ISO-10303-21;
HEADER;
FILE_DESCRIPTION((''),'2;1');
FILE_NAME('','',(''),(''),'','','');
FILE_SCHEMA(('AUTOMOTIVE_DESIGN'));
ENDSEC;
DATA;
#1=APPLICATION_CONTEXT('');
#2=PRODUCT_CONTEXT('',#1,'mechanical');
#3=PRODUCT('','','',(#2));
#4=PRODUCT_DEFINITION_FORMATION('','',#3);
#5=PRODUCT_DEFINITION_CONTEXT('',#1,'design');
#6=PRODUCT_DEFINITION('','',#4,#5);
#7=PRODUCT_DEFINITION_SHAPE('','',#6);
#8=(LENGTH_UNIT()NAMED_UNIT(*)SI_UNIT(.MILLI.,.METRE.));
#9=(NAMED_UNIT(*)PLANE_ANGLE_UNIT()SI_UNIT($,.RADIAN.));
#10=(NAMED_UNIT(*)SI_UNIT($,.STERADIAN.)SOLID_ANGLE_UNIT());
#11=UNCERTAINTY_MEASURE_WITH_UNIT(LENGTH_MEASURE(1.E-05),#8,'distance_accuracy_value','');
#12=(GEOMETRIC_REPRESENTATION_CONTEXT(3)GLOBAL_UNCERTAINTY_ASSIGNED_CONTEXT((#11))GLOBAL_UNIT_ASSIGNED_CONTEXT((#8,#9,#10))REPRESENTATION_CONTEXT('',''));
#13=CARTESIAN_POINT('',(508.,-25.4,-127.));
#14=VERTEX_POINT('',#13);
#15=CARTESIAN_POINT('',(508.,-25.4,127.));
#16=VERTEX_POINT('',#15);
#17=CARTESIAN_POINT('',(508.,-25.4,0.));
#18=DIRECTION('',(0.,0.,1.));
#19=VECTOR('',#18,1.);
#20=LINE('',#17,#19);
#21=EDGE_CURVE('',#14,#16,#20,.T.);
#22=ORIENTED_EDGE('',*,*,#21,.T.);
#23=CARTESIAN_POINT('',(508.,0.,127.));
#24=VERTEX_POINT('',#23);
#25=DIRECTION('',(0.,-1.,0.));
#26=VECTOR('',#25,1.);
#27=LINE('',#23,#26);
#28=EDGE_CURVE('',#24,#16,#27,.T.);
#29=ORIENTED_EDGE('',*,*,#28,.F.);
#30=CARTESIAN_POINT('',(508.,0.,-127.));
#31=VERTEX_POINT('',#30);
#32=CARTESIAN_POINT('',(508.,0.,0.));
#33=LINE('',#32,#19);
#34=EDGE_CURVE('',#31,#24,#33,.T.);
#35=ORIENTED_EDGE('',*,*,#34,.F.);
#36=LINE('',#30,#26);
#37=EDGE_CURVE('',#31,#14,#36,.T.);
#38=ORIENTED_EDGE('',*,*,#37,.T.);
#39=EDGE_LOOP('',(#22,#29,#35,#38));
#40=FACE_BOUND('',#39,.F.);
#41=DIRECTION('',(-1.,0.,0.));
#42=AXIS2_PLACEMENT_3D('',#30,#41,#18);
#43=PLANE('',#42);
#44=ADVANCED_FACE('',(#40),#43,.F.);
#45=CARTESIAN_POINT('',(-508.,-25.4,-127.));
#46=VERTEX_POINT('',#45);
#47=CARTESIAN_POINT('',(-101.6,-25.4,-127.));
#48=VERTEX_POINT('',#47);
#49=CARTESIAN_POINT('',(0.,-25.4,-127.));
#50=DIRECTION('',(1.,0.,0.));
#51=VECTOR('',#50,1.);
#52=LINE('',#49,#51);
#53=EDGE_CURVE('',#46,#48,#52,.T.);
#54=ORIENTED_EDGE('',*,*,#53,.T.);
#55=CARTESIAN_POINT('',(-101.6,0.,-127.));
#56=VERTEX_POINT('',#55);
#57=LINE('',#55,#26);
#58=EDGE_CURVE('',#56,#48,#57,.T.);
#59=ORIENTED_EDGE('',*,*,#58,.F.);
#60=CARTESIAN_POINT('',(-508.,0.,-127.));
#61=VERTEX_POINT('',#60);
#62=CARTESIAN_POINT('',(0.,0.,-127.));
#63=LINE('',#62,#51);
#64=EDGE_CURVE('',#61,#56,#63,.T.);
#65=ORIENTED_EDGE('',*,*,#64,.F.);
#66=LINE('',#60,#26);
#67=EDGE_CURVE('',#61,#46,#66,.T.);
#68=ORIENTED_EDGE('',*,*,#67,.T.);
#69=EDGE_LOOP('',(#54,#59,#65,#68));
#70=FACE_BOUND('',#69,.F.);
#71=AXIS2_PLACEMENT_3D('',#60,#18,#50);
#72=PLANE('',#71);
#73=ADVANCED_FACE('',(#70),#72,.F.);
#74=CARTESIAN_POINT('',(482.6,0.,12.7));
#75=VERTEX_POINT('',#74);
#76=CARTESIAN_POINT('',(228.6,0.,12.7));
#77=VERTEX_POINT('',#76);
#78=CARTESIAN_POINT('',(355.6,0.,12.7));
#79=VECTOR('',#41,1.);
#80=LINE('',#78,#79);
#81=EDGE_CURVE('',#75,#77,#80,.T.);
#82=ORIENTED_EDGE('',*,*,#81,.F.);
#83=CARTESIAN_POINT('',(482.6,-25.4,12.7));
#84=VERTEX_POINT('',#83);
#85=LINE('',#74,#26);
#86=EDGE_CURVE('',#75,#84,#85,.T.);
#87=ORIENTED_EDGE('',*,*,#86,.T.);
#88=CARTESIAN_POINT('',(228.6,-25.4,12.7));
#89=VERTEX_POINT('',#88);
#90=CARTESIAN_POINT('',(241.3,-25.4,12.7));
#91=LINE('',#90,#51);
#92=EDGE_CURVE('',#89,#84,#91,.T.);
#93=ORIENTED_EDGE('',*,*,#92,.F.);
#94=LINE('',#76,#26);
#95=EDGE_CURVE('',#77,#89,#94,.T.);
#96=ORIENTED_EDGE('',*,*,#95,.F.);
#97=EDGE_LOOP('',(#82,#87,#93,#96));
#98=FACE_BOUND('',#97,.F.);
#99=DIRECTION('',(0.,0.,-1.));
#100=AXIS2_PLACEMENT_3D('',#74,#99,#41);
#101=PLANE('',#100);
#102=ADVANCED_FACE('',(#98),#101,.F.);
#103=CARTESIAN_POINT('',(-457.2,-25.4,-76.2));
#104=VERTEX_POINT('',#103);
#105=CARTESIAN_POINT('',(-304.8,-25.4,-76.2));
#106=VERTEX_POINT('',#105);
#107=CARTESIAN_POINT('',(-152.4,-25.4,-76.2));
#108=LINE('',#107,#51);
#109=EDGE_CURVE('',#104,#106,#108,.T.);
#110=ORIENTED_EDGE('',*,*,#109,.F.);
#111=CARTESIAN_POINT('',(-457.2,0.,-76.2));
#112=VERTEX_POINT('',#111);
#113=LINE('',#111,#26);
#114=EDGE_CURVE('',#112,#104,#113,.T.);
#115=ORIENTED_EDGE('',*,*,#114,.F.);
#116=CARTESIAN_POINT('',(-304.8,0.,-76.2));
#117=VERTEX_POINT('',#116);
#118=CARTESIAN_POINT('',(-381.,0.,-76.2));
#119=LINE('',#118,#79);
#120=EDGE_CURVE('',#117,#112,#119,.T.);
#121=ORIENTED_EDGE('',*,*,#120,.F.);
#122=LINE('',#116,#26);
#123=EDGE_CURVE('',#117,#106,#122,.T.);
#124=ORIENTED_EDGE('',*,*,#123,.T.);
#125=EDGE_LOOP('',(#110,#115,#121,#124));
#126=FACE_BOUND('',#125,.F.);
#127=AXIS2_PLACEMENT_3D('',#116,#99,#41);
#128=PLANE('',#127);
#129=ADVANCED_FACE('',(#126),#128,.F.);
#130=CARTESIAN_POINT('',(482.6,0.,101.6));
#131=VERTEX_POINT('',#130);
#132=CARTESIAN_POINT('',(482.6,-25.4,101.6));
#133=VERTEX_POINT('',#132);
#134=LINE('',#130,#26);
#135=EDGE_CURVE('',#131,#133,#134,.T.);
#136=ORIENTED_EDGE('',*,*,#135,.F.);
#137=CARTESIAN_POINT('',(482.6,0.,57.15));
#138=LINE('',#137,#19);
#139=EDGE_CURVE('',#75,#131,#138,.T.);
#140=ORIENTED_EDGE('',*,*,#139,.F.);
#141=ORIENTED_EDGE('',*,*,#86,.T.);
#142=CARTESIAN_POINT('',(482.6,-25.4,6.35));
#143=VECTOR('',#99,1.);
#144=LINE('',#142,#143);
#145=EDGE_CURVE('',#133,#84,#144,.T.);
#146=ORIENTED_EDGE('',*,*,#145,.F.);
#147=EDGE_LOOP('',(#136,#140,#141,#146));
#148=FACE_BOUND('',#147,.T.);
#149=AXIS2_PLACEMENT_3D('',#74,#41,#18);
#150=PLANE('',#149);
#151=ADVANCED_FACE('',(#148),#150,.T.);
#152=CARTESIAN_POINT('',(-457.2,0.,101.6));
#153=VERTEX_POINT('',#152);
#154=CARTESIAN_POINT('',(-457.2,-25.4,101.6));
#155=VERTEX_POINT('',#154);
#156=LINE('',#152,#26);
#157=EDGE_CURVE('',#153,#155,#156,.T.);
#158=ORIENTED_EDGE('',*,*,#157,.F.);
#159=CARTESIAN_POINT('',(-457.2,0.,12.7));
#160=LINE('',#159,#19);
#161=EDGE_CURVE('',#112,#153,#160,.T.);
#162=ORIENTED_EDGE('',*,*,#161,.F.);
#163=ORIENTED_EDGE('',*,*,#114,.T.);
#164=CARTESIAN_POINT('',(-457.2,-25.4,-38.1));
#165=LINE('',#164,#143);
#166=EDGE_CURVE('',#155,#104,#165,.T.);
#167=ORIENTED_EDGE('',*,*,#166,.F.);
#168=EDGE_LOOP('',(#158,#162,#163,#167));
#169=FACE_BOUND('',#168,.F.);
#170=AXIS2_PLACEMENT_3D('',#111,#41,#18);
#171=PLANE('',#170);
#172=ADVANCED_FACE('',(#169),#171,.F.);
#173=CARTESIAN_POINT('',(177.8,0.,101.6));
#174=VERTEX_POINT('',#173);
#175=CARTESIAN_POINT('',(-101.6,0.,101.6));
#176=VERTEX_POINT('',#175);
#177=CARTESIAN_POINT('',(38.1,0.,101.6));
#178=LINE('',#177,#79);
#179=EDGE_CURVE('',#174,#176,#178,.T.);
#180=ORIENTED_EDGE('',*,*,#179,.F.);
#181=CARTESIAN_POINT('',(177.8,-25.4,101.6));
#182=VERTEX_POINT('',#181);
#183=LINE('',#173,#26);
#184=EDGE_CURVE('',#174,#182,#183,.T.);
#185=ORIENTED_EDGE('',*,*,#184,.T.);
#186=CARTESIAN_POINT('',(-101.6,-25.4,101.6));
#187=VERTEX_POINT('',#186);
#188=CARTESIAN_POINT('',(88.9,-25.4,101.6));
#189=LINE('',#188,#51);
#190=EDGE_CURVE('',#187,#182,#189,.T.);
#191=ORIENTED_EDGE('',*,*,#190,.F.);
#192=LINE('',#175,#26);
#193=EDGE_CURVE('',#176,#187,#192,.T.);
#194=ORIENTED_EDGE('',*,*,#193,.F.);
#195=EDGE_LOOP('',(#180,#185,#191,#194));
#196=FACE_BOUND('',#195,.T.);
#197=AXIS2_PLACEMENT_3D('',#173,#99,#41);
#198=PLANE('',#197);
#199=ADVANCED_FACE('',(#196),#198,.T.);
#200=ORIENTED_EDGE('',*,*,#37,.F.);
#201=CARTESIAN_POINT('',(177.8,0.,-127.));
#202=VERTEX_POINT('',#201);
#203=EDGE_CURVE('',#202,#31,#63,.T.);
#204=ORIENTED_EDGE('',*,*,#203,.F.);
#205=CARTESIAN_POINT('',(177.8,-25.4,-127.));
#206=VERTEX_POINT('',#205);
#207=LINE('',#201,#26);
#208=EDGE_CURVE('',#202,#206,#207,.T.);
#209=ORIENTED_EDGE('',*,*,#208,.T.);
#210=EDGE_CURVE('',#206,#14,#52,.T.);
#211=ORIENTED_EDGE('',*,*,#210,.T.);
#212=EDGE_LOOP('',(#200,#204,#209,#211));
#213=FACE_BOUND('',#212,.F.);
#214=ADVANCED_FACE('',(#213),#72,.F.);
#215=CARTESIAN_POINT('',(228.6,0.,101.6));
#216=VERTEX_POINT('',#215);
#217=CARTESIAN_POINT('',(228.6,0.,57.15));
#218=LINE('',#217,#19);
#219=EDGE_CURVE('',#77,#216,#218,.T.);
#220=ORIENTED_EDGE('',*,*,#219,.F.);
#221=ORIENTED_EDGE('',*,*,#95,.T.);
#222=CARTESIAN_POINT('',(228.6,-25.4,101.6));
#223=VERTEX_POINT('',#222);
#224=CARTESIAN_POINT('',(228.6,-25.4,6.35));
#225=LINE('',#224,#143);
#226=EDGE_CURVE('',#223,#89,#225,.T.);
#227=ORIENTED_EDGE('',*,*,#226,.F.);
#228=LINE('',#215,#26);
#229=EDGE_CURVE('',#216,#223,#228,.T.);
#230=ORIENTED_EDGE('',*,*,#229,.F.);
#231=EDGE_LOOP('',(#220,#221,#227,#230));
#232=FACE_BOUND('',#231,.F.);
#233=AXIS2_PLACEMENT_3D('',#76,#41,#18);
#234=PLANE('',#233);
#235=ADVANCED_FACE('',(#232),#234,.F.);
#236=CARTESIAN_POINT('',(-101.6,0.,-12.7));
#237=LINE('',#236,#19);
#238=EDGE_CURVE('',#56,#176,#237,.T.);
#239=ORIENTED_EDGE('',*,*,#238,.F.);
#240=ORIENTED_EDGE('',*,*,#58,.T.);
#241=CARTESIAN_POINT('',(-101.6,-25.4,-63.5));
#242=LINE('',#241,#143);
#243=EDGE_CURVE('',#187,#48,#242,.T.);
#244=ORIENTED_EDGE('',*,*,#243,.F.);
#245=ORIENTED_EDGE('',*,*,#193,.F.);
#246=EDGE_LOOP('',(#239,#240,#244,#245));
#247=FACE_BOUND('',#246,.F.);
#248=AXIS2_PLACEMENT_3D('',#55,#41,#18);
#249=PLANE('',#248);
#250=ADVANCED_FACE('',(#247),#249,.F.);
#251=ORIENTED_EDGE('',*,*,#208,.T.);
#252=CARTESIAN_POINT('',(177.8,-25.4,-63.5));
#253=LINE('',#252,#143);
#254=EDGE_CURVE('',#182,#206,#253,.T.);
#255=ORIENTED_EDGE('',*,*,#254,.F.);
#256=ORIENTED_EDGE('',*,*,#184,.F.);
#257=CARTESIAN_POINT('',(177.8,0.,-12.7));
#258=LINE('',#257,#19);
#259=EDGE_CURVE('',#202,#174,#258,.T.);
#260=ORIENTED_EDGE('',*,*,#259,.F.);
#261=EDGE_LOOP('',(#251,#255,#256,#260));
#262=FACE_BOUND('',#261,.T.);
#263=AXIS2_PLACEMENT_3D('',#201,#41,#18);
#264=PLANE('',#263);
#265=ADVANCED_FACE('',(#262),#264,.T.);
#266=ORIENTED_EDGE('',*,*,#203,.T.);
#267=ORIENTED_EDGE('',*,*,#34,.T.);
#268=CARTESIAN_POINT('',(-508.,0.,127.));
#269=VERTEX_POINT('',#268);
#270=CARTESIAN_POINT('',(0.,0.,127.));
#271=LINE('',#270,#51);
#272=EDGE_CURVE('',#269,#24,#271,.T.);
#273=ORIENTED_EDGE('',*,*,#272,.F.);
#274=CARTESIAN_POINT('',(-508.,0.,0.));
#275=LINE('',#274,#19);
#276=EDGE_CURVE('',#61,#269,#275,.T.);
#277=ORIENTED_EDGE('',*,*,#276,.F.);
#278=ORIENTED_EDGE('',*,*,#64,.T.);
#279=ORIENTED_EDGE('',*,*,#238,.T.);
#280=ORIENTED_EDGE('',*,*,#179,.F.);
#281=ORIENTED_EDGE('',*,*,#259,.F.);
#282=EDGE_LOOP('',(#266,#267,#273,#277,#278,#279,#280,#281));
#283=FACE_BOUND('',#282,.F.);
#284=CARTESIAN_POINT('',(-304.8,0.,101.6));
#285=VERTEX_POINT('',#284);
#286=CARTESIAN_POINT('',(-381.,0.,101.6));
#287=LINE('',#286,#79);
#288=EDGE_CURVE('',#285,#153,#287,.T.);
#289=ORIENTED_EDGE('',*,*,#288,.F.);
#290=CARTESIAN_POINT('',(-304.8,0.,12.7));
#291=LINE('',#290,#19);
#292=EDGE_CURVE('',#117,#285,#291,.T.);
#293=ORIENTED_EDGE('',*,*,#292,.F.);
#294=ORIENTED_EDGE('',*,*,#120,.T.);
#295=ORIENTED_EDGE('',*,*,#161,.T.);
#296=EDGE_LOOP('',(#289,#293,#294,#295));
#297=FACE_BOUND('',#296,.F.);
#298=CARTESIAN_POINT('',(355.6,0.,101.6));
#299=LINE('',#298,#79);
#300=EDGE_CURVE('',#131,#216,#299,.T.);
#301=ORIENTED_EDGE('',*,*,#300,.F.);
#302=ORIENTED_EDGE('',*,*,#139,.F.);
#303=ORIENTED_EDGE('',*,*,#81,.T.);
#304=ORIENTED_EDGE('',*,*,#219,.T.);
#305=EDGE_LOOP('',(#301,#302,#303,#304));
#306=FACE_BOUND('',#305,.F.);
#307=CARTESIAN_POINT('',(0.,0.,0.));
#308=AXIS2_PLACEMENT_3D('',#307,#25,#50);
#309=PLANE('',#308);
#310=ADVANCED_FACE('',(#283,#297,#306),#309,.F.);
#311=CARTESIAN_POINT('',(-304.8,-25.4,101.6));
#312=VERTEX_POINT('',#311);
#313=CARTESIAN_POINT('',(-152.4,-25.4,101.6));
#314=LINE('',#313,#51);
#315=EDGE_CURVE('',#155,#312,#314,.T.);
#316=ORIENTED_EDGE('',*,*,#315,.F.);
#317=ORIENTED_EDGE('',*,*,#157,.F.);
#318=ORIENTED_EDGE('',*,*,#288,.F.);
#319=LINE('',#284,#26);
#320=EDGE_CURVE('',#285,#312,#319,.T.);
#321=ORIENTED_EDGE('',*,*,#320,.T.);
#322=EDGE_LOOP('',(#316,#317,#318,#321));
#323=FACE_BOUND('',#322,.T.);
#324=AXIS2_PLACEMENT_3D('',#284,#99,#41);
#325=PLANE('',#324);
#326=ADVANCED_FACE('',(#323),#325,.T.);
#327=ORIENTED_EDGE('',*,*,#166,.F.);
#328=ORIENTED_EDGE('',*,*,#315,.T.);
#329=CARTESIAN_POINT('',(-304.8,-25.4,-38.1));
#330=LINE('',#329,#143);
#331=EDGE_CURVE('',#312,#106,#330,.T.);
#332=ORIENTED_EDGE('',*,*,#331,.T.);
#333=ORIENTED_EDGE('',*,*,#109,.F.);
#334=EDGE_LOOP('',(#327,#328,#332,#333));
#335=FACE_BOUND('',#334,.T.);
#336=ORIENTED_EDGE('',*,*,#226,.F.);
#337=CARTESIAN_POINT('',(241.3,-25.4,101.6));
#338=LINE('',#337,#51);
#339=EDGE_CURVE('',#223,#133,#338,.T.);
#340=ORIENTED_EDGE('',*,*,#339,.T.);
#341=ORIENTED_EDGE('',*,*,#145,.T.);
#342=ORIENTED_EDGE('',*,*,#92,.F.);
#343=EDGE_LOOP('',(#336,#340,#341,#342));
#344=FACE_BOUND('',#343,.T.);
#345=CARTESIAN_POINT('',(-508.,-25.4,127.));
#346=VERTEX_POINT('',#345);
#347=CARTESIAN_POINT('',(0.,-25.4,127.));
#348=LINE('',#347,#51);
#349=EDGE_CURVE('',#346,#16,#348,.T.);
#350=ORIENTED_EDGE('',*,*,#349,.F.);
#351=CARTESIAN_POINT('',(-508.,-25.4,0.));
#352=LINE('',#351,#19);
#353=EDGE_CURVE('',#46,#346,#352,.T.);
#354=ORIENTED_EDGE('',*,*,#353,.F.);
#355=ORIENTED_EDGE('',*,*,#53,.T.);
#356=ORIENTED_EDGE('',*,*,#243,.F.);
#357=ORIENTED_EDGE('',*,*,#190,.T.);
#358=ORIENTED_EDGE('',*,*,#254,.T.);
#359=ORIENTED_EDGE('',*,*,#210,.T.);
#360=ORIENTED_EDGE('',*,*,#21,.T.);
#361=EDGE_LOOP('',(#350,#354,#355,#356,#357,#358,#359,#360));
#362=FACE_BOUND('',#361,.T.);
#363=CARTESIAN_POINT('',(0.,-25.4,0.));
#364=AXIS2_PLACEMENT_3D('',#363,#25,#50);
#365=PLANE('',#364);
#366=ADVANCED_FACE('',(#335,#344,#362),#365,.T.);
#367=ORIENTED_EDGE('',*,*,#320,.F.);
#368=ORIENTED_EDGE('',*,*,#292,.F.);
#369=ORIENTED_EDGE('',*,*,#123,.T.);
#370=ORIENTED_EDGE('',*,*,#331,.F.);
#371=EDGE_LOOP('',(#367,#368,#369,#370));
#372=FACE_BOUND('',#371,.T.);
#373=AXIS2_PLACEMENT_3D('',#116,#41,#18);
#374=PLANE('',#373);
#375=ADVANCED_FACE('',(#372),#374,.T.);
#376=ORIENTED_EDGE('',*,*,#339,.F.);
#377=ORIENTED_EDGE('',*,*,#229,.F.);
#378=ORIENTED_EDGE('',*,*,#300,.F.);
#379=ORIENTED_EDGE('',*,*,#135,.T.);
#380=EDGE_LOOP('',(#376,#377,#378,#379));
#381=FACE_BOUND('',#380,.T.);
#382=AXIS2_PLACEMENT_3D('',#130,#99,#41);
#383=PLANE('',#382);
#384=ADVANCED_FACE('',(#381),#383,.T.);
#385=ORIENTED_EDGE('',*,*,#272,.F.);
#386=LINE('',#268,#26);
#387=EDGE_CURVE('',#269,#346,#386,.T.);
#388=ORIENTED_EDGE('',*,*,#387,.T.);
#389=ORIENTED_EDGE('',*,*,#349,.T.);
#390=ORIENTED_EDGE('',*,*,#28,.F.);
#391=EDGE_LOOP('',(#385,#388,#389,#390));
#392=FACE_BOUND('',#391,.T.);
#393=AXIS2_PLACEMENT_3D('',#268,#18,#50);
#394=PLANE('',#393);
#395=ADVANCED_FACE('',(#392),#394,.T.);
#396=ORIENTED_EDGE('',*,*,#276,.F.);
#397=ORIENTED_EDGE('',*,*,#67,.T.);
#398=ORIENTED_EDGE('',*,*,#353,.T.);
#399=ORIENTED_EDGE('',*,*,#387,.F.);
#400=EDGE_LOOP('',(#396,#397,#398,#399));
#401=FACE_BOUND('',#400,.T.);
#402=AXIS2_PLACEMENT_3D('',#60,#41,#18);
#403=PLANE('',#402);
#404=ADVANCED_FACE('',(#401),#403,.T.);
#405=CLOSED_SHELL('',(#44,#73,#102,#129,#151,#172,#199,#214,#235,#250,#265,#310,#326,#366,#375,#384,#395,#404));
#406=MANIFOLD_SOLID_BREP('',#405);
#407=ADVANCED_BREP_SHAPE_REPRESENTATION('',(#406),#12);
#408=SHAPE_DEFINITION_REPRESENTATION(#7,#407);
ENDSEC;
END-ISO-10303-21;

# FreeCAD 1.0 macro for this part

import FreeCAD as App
import Part
import Sketcher

V = App.Vector
Q = App.Units.Quantity


def add_polygon(sketch, points):
    """Adds a closed chain of lines whose ends are joined by coincident constraints."""
    first, n = sketch.GeometryCount, len(points)
    for a, b in zip(points, points[1:] + points[:1]):
        sketch.addGeometry(Part.LineSegment(App.Vector(*a, 0), App.Vector(*b, 0)), False)
    for i in range(n):
        sketch.addConstraint(Sketcher.Constraint("Coincident", first + i, 2, first + (i + 1) % n, 1))

doc = App.newDocument("Part")
params = doc.addObject("Spreadsheet::Sheet", "Params")
for row, (alias, value) in enumerate([
    ("sketch1_width", "40 in"),
    ("sketch1_height", "10 in"),
    ("pad1_length", "1 in"),
    ("sketch2_width", "10 in"),
    ("sketch2_width2", "11 in"),
    ("sketch2_width3", "6 in"),
    ("sketch2_height", "9 in"),
    ("sketch2_height2", "7 in"),
    ("pocket1_length", "3 in"),
], start=1):
    params.set(f"A{row}", alias)
    params.set(f"B{row}", "=" + value)
    params.setAlias(f"B{row}", alias)

body = doc.addObject("PartDesign::Body", "Body")

# Sketch on XZ plane
sketch1 = body.newObject("Sketcher::SketchObject", "Sketch")
sketch1.AttachmentSupport = (doc.getObject("XZ_Plane"), [""])
sketch1.MapMode = "FlatFace"
add_polygon(sketch1, [(-508, 127), (-508, -127), (508, -127), (508, 127)])  # lines 0-3
sketch1.addConstraint([
    Sketcher.Constraint("Vertical", 0),
    Sketcher.Constraint("Horizontal", 1),
    Sketcher.Constraint("Vertical", 2),
    Sketcher.Constraint("Horizontal", 3),
    Sketcher.Constraint("Symmetric", 0, 2, 2, 2, -1, 1),
    Sketcher.Constraint("DistanceX", 1, 1, 1, 2, Q("40 in")),
    Sketcher.Constraint("DistanceY", 0, 2, 0, 1, Q("10 in")),
])
sketch1.setExpression("Constraints[9]", "Params.sketch1_width")
sketch1.setExpression("Constraints[10]", "Params.sketch1_height")
pad1 = body.newObject("PartDesign::Pad", "Pad")
pad1.Profile = sketch1
pad1.setExpression("Length", "Params.pad1_length")

# Sketch on XZ plane
sketch2 = body.newObject("Sketcher::SketchObject", "Sketch001")
sketch2.AttachmentSupport = (doc.getObject("XZ_Plane"), [""])
sketch2.MapMode = "FlatFace"
add_polygon(sketch2, [(483, 102), (483, 13), (229, 13), (229, 102)])  # lines 0-3
add_polygon(sketch2, [(178, 102), (178, -127), (-102, -127), (-102, 102)])  # lines 4-7
add_polygon(sketch2, [(-305, 102), (-305, -76), (-457, -76), (-457, 102)])  # lines 8-11
sketch2.addConstraint([
    Sketcher.Constraint("Vertical", 0),
    Sketcher.Constraint("Horizontal", 1),
    Sketcher.Constraint("Vertical", 2),
    Sketcher.Constraint("Horizontal", 3),
    Sketcher.Constraint("Vertical", 4),
    Sketcher.Constraint("Horizontal", 5),
    Sketcher.Constraint("Vertical", 6),
    Sketcher.Constraint("Horizontal", 7),
    Sketcher.Constraint("Vertical", 8),
    Sketcher.Constraint("Horizontal", 9),
    Sketcher.Constraint("Vertical", 10),
    Sketcher.Constraint("Horizontal", 11),
    Sketcher.Constraint("Horizontal", 3, 2, 6, 2),
    Sketcher.Constraint("Horizontal", 7, 2, 10, 2),
    Sketcher.Constraint("DistanceX", 1, 2, 1, 1, Q("10 in")),
    Sketcher.Constraint("DistanceX", 5, 2, 5, 1, Q("11 in")),
    Sketcher.Constraint("DistanceX", 9, 2, 9, 1, Q("6 in")),
    Sketcher.Constraint("DistanceY", 4, 2, 4, 1, Q("9 in")),
    Sketcher.Constraint("DistanceY", 8, 2, 8, 1, Q("7 in")),
    Sketcher.Constraint("DistanceY", 0, 2, 0, 1, Q("3.5 in")),
    Sketcher.Constraint("DistanceX", -1, 1, 0, 2, Q("19 in")),
    Sketcher.Constraint("DistanceY", -1, 1, 2, 2, Q("4 in")),
    Sketcher.Constraint("DistanceX", -1, 1, 4, 2, Q("7 in")),
    Sketcher.Constraint("DistanceX", 8, 2, -1, 1, Q("12 in")),
])
sketch2.setExpression("Constraints[26]", "Params.sketch2_width")
sketch2.setExpression("Constraints[27]", "Params.sketch2_width2")
sketch2.setExpression("Constraints[28]", "Params.sketch2_width3")
sketch2.setExpression("Constraints[29]", "Params.sketch2_height")
sketch2.setExpression("Constraints[30]", "Params.sketch2_height2")
pocket1 = body.newObject("PartDesign::Pocket", "Pocket")
pocket1.Profile = sketch2
pocket1.setExpression("Length", "Params.pocket1_length")
pocket1.Reversed = True

doc.recompute()
